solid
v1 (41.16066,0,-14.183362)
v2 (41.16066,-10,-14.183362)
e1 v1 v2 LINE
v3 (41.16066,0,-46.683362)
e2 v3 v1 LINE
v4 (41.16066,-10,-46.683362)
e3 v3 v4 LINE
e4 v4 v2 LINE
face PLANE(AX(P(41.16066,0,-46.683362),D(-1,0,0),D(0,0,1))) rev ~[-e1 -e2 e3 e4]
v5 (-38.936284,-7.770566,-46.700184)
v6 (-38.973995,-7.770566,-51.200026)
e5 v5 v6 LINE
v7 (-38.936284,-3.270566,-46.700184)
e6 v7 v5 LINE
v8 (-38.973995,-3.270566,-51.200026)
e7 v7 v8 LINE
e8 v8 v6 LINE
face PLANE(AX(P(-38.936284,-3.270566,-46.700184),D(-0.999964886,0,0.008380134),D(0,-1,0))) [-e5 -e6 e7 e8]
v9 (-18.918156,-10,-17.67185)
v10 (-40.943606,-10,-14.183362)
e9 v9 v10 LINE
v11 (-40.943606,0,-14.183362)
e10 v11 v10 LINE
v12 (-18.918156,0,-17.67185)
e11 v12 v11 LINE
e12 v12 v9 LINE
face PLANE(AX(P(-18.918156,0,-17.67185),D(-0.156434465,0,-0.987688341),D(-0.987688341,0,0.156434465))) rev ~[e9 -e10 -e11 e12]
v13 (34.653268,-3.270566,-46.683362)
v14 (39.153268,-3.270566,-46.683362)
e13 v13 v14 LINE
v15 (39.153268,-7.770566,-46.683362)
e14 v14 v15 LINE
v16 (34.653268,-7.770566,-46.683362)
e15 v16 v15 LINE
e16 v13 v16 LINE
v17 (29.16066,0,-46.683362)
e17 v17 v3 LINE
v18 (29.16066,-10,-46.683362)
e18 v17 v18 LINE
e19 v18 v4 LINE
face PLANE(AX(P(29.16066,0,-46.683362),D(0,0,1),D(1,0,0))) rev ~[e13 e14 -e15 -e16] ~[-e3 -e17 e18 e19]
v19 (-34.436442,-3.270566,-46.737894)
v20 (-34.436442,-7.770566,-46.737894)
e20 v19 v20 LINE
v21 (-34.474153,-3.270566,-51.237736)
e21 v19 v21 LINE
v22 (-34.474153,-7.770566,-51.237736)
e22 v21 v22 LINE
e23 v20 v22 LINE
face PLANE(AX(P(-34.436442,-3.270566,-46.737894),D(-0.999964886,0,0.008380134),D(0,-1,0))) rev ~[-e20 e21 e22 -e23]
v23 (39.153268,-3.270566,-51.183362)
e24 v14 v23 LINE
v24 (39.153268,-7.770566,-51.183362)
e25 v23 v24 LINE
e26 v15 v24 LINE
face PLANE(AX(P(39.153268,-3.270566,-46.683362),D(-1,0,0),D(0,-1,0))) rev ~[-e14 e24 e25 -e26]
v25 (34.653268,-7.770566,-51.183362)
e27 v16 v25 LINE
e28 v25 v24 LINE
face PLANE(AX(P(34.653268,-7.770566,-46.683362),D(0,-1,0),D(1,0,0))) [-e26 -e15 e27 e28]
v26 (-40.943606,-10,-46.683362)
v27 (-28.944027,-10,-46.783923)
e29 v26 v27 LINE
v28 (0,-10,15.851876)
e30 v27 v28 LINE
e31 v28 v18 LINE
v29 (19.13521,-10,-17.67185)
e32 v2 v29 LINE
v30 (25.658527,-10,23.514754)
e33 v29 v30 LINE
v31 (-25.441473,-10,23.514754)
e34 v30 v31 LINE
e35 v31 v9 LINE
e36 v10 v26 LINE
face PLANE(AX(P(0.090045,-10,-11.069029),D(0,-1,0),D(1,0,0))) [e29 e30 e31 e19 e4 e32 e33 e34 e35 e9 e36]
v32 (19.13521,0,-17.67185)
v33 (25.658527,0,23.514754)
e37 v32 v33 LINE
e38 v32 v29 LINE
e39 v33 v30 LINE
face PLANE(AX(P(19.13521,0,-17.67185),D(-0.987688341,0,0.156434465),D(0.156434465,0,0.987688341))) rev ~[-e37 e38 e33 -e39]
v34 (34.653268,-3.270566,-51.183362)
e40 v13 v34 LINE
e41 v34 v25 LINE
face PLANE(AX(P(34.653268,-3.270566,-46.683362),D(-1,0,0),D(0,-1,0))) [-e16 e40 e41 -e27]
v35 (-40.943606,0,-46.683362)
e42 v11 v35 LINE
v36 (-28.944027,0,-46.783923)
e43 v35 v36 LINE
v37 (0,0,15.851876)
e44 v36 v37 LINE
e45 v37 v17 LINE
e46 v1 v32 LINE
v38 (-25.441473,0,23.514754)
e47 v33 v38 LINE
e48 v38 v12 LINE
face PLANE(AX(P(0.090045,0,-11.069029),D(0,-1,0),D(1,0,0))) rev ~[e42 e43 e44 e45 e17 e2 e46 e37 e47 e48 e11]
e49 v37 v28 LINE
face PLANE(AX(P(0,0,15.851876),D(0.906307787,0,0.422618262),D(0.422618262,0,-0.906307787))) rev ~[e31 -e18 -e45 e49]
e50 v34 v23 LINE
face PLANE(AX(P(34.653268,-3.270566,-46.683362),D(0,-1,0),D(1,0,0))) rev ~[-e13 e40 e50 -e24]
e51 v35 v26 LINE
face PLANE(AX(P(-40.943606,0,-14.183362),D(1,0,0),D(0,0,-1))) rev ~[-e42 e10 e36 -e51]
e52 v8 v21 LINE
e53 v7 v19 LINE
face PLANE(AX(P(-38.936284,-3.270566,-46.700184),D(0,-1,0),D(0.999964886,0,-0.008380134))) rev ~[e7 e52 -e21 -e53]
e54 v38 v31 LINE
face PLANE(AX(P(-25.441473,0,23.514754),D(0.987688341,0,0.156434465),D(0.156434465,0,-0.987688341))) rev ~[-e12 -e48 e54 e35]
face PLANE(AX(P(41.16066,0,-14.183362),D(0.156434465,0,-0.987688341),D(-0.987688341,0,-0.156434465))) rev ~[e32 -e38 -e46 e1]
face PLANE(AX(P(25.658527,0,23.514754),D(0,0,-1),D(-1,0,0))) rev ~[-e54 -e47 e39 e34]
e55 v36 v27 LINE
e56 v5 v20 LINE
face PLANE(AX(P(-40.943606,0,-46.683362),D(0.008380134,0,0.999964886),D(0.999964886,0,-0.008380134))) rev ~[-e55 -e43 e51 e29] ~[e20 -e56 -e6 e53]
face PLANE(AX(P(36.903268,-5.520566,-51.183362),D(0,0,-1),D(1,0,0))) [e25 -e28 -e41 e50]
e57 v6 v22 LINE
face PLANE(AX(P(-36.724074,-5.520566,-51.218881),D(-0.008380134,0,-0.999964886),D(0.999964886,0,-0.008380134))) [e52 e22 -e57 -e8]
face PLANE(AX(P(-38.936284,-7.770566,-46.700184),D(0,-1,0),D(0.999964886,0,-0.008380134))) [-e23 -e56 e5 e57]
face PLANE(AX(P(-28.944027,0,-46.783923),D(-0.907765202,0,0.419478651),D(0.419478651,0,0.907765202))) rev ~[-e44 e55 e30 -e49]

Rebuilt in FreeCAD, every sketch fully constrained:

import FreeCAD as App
import Part
import Sketcher
Q = App.Units.Quantity


def add_polygon(sketch, points):
    """Adds a closed chain of lines whose ends are joined by coincident constraints."""
    first, n = sketch.GeometryCount, len(points)
    for a, b in zip(points, points[1:] + points[:1]):
        sketch.addGeometry(Part.LineSegment(App.Vector(*a, 0), App.Vector(*b, 0)), False)
    for i in range(n):
        sketch.addConstraint(Sketcher.Constraint("Coincident", first + i, 2, first + (i + 1) % n, 1))

doc = App.newDocument("Part")
params = doc.addObject("Spreadsheet::Sheet", "Params")
for row, (alias, value) in enumerate([
    ("sketch1_width", "12 mm"),
    ("sketch1_length", "12 mm"),
    ("sketch1_length2", "69 mm"),
    ("sketch1_width2", "51.1 mm"),
    ("sketch1_height", "32.5 mm"),
    ("pad1_length", "10 mm"),
    ("sketch2_width", "4.5 mm"),
    ("pad2_length", "4.5 mm"),
    ("sketch3_width", "4.5 mm"),
    ("pad3_length", "4.5 mm"),
], start=1):
    params.set(f"A{row}", alias)
    params.set(f"B{row}", "=" + value)
    params.setAlias(f"B{row}", alias)

body = doc.addObject("PartDesign::Body", "Body")

sketch1 = body.newObject("Sketcher::SketchObject", "Sketch")
sketch1.AttachmentSupport = (doc.getObject("XZ_Plane"), [""])
sketch1.MapMode = "FlatFace"
add_polygon(sketch1, [(26, 24), (-25, 24), (-19, -18), (-41, -14), (-41, -47), (-29, -47), (0, 16), (29, -47), (41, -47), (41, -14), (19, -18)])
sketch1.addConstraint(Sketcher.Constraint("Horizontal", 0))
sketch1.addConstraint(Sketcher.Constraint("Vertical", 3))
sketch1.addConstraint(Sketcher.Constraint("Horizontal", 7))
sketch1.addConstraint(Sketcher.Constraint("Vertical", 8))
sketch1.addConstraint(Sketcher.Constraint("PointOnObject", 5, 2, -2))
sketch1.addConstraint(Sketcher.Constraint("Perpendicular", 1, 9))
sketch1.addConstraint(Sketcher.Constraint("Perpendicular", 2, 10))
sketch1.addConstraint(Sketcher.Constraint("Horizontal", 3, 2, 6, 2))
sketch1.addConstraint(Sketcher.Constraint("Horizontal", 2, 2, 8, 2))
sketch1.addConstraint(Sketcher.Constraint("Horizontal", 1, 2, 9, 2))
sketch1.addConstraint(Sketcher.Constraint("Equal", 5, 6))
sketch1.addConstraint(Sketcher.Constraint("Equal", 2, 9))
sketch1.addConstraint(Sketcher.Constraint("DistanceX", 7, 1, 7, 2, 12.0))
sketch1.addConstraint(Sketcher.Constraint("Angle", 1, Q("-81 deg")))
sketch1.addConstraint(Sketcher.Constraint("Angle", 6, Q("-65 deg")))
sketch1.addConstraint(Sketcher.Constraint("Distance", 4, 12.0))
sketch1.addConstraint(Sketcher.Constraint("Distance", 5, 69.0))
sketch1.addConstraint(Sketcher.Constraint("DistanceX", 0, 2, 0, 1, 51.1))
sketch1.addConstraint(Sketcher.Constraint("DistanceY", 3, 2, 3, 1, 32.5))
sketch1.addConstraint(Sketcher.Constraint("Distance", 1, 41.7))
sketch1.addConstraint(Sketcher.Constraint("Distance", 2, 22.3))
sketch1.addConstraint(Sketcher.Constraint("DistanceY", 1, 2, -1, 1, 17.67185))
sketch1.setExpression("Constraints[23]", "Params.sketch1_width")
sketch1.setExpression("Constraints[26]", "Params.sketch1_length")
sketch1.setExpression("Constraints[27]", "Params.sketch1_length2")
sketch1.setExpression("Constraints[28]", "Params.sketch1_width2")
sketch1.setExpression("Constraints[29]", "Params.sketch1_height")
pad1 = body.newObject("PartDesign::Pad", "Pad")
pad1.Profile = sketch1
pad1.setExpression("Length", "Params.pad1_length")

sketch2 = body.newObject("Sketcher::SketchObject", "Sketch001")
sketch2.Placement = App.Placement(App.Vector(-0.394074, 0, -47.023184), App.Rotation(App.Vector(0.999964886, 0, -0.008380134), App.Vector(0, -1, 0), App.Vector(-0.008380134, 0, -0.999964886), "ZXY"))
add_polygon(sketch2, [(-38.5, 7.8), (-38.5, 3.3), (-34, 3.3), (-34, 7.8)])
sketch2.addConstraint(Sketcher.Constraint("Vertical", 0))
sketch2.addConstraint(Sketcher.Constraint("Horizontal", 1))
sketch2.addConstraint(Sketcher.Constraint("Vertical", 2))
sketch2.addConstraint(Sketcher.Constraint("Horizontal", 3))
sketch2.addConstraint(Sketcher.Constraint("Equal", 3, 0))
sketch2.addConstraint(Sketcher.Constraint("DistanceX", 1, 1, 1, 2, 4.5))
sketch2.addConstraint(Sketcher.Constraint("DistanceX", 0, 2, -1, 1, 38.543563))
sketch2.addConstraint(Sketcher.Constraint("DistanceY", -1, 1, 0, 2, 3.270566))
sketch2.setExpression("Constraints[9]", "Params.sketch2_width")
pad2 = body.newObject("PartDesign::Pad", "Pad001")
pad2.Profile = sketch2
pad2.setExpression("Length", "Params.pad2_length")

sketch3 = body.newObject("Sketcher::SketchObject", "Sketch002")
sketch3.AttachmentSupport = (doc.getObject("XY_Plane"), [""])
sketch3.MapMode = "FlatFace"
sketch3.AttachmentOffset = App.Placement(App.Vector(0, 0, -46.683362), App.Rotation())
add_polygon(sketch3, [(34.7, -7.8), (34.7, -3.3), (39.2, -3.3), (39.2, -7.8)])
sketch3.addConstraint(Sketcher.Constraint("Vertical", 0))
sketch3.addConstraint(Sketcher.Constraint("Horizontal", 1))
sketch3.addConstraint(Sketcher.Constraint("Vertical", 2))
sketch3.addConstraint(Sketcher.Constraint("Horizontal", 3))
sketch3.addConstraint(Sketcher.Constraint("Equal", 3, 0))
sketch3.addConstraint(Sketcher.Constraint("DistanceX", 1, 1, 1, 2, 4.5))
sketch3.addConstraint(Sketcher.Constraint("DistanceX", -1, 1, 0, 2, 34.653268))
sketch3.addConstraint(Sketcher.Constraint("DistanceY", 0, 2, -1, 1, 3.270566))
sketch3.setExpression("Constraints[9]", "Params.sketch3_width")
pad3 = body.newObject("PartDesign::Pad", "Pad002")
pad3.Profile = sketch3
pad3.setExpression("Length", "Params.pad3_length")
pad3.Reversed = True

doc.recompute()
